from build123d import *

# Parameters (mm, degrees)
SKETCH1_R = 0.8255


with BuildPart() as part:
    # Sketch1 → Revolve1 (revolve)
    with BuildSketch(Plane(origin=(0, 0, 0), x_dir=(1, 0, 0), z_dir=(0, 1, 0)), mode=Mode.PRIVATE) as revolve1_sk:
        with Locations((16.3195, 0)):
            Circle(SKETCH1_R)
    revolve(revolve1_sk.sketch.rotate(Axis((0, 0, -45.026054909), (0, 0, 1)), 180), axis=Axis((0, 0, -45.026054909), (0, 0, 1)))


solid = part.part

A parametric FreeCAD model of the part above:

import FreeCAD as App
import Part
import Sketcher
from FreeCAD import Vector
Q = App.Units.Quantity

doc = App.newDocument("Part")
params = doc.addObject("Spreadsheet::Sheet", "Params")
for row, (alias, value) in enumerate([
    ("sketch1_diameter", "0.065 in"),
    ("revolution_angle", "360 deg"),
], start=1):
    params.set(f"A{row}", alias)
    params.set(f"B{row}", "=" + value)
    params.setAlias(f"B{row}", alias)

body = doc.addObject("PartDesign::Body", "Body")

# Sketch on XZ plane
sketch1 = body.newObject("Sketcher::SketchObject", "Sketch")
sketch1.AttachmentSupport = (doc.getObject("XZ_Plane"), [""])
sketch1.MapMode = "FlatFace"
sketch1.addGeometry(Part.Circle(Vector(16.3195, 0, 0), Vector(0, 0, 1), 0.8255), False)
sketch1.addConstraint([
    Sketcher.Constraint("PointOnObject", 0, 3, -1),
    Sketcher.Constraint("Diameter", 0, Q("0.065 in")),
    Sketcher.Constraint("DistanceX", -1, 1, 0, 3, Q("0.6425 in")),
])
sketch1.setExpression("Constraints[1]", "Params.sketch1_diameter")
revolution = body.newObject("PartDesign::Revolution", "Revolution")
revolution.Profile = sketch1
revolution.ReferenceAxis = (sketch1, ["V_Axis"])
revolution.setExpression("Angle", "Params.revolution_angle")

doc.recompute()
